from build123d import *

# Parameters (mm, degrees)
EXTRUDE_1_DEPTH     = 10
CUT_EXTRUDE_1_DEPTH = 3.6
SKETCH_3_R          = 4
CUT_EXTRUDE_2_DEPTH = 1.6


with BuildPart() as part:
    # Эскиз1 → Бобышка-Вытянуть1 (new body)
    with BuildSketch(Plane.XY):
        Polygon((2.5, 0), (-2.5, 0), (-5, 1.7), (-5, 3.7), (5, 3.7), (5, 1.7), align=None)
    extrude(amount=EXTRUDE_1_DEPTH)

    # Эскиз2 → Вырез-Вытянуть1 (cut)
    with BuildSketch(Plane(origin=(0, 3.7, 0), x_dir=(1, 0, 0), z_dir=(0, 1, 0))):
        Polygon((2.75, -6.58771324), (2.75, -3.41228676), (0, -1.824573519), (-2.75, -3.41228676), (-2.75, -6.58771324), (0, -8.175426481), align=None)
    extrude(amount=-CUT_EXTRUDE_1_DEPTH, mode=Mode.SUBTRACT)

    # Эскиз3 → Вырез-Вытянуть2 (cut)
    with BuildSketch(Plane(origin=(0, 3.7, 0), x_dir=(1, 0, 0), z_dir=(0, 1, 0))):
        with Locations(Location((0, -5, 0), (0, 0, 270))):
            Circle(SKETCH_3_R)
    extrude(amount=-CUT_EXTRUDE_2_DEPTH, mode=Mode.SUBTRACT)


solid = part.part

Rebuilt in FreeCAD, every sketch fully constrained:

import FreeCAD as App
import Part
import Sketcher
Q = App.Units.Quantity


def add_polygon(sketch, points):
    """Adds a closed chain of lines whose ends are joined by coincident constraints."""
    first, n = sketch.GeometryCount, len(points)
    for a, b in zip(points, points[1:] + points[:1]):
        sketch.addGeometry(Part.LineSegment(App.Vector(*a, 0), App.Vector(*b, 0)), False)
    for i in range(n):
        sketch.addConstraint(Sketcher.Constraint("Coincident", first + i, 2, first + (i + 1) % n, 1))

doc = App.newDocument("Part")
body = doc.addObject("PartDesign::Body", "Body")

sketch1 = body.newObject("Sketcher::SketchObject", "Sketch")
sketch1.AttachmentSupport = (doc.getObject("XY_Plane"), [""])
sketch1.MapMode = "FlatFace"
add_polygon(sketch1, [(-2.5, 0), (2.5, 0), (5, 1.7), (5, 3.7), (-5, 3.7), (-5, 1.7)])
sketch1.addConstraint([
    Sketcher.Constraint("Horizontal", 0),
    Sketcher.Constraint("Vertical", 2),
    Sketcher.Constraint("Horizontal", 3),
    Sketcher.Constraint("Vertical", 4),
    Sketcher.Constraint("Symmetric", 0, 2, 5, 2, -1, 1),
    Sketcher.Constraint("Symmetric", 1, 2, 4, 2, -2),
    Sketcher.Constraint("DistanceX", 0, 1, 0, 2, 5.0),
    Sketcher.Constraint("DistanceX", 3, 2, 3, 1, 10.0),
    Sketcher.Constraint("DistanceY", 2, 1, 2, 2, 2.0),
    Sketcher.Constraint("DistanceY", -1, 1, 1, 2, 1.7),
])
pad1 = body.newObject("PartDesign::Pad", "Pad")
pad1.Profile = sketch1
pad1.Length = 10

sketch2 = body.newObject("Sketcher::SketchObject", "Sketch001")
sketch2.AttachmentSupport = (doc.getObject("XZ_Plane"), [""])
sketch2.MapMode = "FlatFace"
sketch2.AttachmentOffset = App.Placement(App.Vector(0, 0, -3.7), App.Rotation())
add_polygon(sketch2, [(2.75, 6.587713), (2.75, 3.412287), (0, 1.824574), (-2.75, 3.412287), (-2.75, 6.587713), (0, 8.175426)])
sketch2.addConstraint([
    Sketcher.Constraint("Vertical", 0),
    Sketcher.Constraint("Vertical", 3),
    Sketcher.Constraint("Symmetric", 0, 2, 2, 2, -2),
    Sketcher.Constraint("PointOnObject", 1, 2, -2),
    Sketcher.Constraint("PointOnObject", 4, 2, -2),
    Sketcher.Constraint("Parallel", 1, 4),
    Sketcher.Constraint("Parallel", 2, 5),
    Sketcher.Constraint("Angle", 1, Q("-150 deg")),
    Sketcher.Constraint("DistanceX", 2, 2, 0, 2, 5.5),
    Sketcher.Constraint("DistanceY", 0, 2, 0, 1, 3.175426),
    Sketcher.Constraint("DistanceY", -1, 1, 0, 2, 3.412287),
])
pocket1 = body.newObject("PartDesign::Pocket", "Pocket")
pocket1.Profile = sketch2
pocket1.Length = 3.6
pocket1.Reversed = True

sketch3 = body.newObject("Sketcher::SketchObject", "Sketch002")
sketch3.AttachmentSupport = (doc.getObject("XZ_Plane"), [""])
sketch3.MapMode = "FlatFace"
sketch3.AttachmentOffset = App.Placement(App.Vector(0, 0, -3.7), App.Rotation())
sketch3.addGeometry(Part.Circle(App.Vector(0, 5, 0), App.Vector(0, 0, 1), 4), False)
sketch3.addConstraint([
    Sketcher.Constraint("PointOnObject", 0, 3, -2),
    Sketcher.Constraint("Diameter", 0, 8.0),
    Sketcher.Constraint("DistanceY", -1, 1, 0, 3, 5.0),
])
pocket2 = body.newObject("PartDesign::Pocket", "Pocket001")
pocket2.Profile = sketch3
pocket2.Length = 1.6
pocket2.Reversed = True

doc.recompute()
